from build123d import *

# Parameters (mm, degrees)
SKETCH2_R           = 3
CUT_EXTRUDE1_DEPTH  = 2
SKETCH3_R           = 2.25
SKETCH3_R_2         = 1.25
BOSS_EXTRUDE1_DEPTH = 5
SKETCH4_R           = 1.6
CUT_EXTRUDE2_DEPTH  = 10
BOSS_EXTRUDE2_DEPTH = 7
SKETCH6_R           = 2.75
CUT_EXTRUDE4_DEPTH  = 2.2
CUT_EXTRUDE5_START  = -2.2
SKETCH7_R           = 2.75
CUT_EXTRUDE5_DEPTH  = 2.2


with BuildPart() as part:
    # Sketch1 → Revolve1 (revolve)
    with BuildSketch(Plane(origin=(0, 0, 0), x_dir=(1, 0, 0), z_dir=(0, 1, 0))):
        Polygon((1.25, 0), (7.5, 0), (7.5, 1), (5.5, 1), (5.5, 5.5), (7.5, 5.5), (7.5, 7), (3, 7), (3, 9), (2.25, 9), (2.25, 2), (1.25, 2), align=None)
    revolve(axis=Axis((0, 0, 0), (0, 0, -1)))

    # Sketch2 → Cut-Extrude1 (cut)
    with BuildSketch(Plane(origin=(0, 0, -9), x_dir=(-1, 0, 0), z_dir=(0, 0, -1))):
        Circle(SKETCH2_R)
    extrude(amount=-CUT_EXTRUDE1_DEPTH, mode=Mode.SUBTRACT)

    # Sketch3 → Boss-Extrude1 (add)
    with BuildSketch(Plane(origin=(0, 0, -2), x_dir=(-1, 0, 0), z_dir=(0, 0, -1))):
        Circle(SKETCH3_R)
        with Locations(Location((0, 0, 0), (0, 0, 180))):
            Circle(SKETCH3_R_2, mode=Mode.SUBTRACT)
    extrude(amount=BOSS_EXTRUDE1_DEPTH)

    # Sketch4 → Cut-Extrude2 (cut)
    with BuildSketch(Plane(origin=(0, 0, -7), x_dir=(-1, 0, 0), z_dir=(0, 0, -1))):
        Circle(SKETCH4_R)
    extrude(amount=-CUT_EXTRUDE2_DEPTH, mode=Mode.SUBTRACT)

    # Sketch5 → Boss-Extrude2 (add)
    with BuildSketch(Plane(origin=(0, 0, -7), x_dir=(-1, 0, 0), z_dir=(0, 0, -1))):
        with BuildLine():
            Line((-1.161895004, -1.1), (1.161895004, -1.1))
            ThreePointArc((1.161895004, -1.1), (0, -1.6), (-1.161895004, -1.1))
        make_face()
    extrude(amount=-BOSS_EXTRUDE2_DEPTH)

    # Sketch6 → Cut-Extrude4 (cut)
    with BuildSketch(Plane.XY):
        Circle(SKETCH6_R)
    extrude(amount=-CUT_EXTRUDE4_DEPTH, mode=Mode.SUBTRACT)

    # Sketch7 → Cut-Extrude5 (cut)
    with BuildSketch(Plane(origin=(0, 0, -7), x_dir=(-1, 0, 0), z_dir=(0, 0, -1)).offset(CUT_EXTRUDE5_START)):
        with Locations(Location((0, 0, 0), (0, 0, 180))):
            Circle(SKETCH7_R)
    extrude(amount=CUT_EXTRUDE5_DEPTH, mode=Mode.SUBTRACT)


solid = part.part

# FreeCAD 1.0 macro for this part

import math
import FreeCAD as App
import Part
import Sketcher

doc = App.newDocument("Part")
body = doc.addObject("PartDesign::Body", "Body")

sketch1 = body.newObject("Sketcher::SketchObject", "Sketch")
sketch1.AttachmentSupport = (doc.getObject("XZ_Plane"), [""])
sketch1.MapMode = "FlatFace"
sketch1.addGeometry([
    Part.LineSegment(App.Vector(1.2, 0, 0), App.Vector(7.5, 0, 0)),
    Part.LineSegment(App.Vector(7.5, 0, 0), App.Vector(7.5, -1, 0)),
    Part.LineSegment(App.Vector(7.5, -1, 0), App.Vector(5.5, -1, 0)),
    Part.LineSegment(App.Vector(5.5, -1, 0), App.Vector(5.5, -5.5, 0)),
    Part.LineSegment(App.Vector(5.5, -5.5, 0), App.Vector(7.5, -5.5, 0)),
    Part.LineSegment(App.Vector(7.5, -5.5, 0), App.Vector(7.5, -7, 0)),
    Part.LineSegment(App.Vector(7.5, -7, 0), App.Vector(3, -7, 0)),
    Part.LineSegment(App.Vector(3, -7, 0), App.Vector(3, -9, 0)),
    Part.LineSegment(App.Vector(3, -9, 0), App.Vector(2.2, -9, 0)),
    Part.LineSegment(App.Vector(2.2, -9, 0), App.Vector(2.2, -2, 0)),
    Part.LineSegment(App.Vector(2.2, -2, 0), App.Vector(1.2, -2, 0)),
    Part.LineSegment(App.Vector(1.2, -2, 0), App.Vector(1.2, 0, 0)),
], False)
sketch1.addConstraint([
    Sketcher.Constraint("Coincident", 0, 2, 1, 1),
    Sketcher.Constraint("Coincident", 1, 2, 2, 1),
    Sketcher.Constraint("Coincident", 2, 2, 3, 1),
    Sketcher.Constraint("Coincident", 3, 2, 4, 1),
    Sketcher.Constraint("Coincident", 4, 2, 5, 1),
    Sketcher.Constraint("Coincident", 5, 2, 6, 1),
    Sketcher.Constraint("Coincident", 6, 2, 7, 1),
    Sketcher.Constraint("Coincident", 7, 2, 8, 1),
    Sketcher.Constraint("Coincident", 8, 2, 9, 1),
    Sketcher.Constraint("Coincident", 9, 2, 10, 1),
    Sketcher.Constraint("Coincident", 10, 2, 11, 1),
    Sketcher.Constraint("Coincident", 11, 2, 0, 1),
    Sketcher.Constraint("Horizontal", 0),
    Sketcher.Constraint("Vertical", 1),
    Sketcher.Constraint("Horizontal", 2),
    Sketcher.Constraint("Vertical", 3),
    Sketcher.Constraint("Horizontal", 4),
    Sketcher.Constraint("Vertical", 5),
    Sketcher.Constraint("Horizontal", 6),
    Sketcher.Constraint("Vertical", 7),
    Sketcher.Constraint("Horizontal", 8),
    Sketcher.Constraint("Vertical", 9),
    Sketcher.Constraint("Horizontal", 10),
    Sketcher.Constraint("Vertical", 11),
    Sketcher.Constraint("PointOnObject", 0, 2, -1),
    Sketcher.Constraint("Vertical", 1, 2, 4, 2),
    Sketcher.Constraint("Equal", 10, 1),
    Sketcher.Constraint("Equal", 6, 3),
    Sketcher.Constraint("Equal", 4, 7),
    Sketcher.Constraint("Equal", 7, 11),
    Sketcher.Constraint("DistanceX", 2, 2, 2, 1, 2.0),
    Sketcher.Constraint("DistanceX", 10, 2, 10, 1, 1.0),
    Sketcher.Constraint("DistanceY", 9, 1, 9, 2, 7.0),
    Sketcher.Constraint("DistanceX", 6, 2, 6, 1, 4.5),
    Sketcher.Constraint("DistanceX", -1, 1, 6, 2, 3.0),
    Sketcher.Constraint("DistanceX", 0, 1, 0, 2, 6.25),
])
revolution = body.newObject("PartDesign::Revolution", "Revolution")
revolution.Profile = sketch1
revolution.ReferenceAxis = (sketch1, ["V_Axis"])
revolution.Angle = 360

sketch2 = body.newObject("Sketcher::SketchObject", "Sketch001")
sketch2.AttachmentSupport = (doc.getObject("XY_Plane"), [""])
sketch2.MapMode = "FlatFace"
sketch2.AttachmentOffset = App.Placement(App.Vector(0, 0, -9), App.Rotation())
sketch2.addGeometry(Part.Circle(App.Vector(0, 0, 0), App.Vector(0, 0, 1), 3), False)
sketch2.addConstraint([
    Sketcher.Constraint("Coincident", 0, 3, -1, 1),
    Sketcher.Constraint("Diameter", 0, 6.0),
])
pocket1 = body.newObject("PartDesign::Pocket", "Pocket")
pocket1.Profile = sketch2
pocket1.Length = 2
pocket1.Reversed = True

sketch3 = body.newObject("Sketcher::SketchObject", "Sketch002")
sketch3.AttachmentSupport = (doc.getObject("XY_Plane"), [""])
sketch3.MapMode = "FlatFace"
sketch3.AttachmentOffset = App.Placement(App.Vector(0, 0, -2), App.Rotation())
sketch3.addGeometry([
    Part.Circle(App.Vector(0, 0, 0), App.Vector(0, 0, 1), 2.2),
    Part.Circle(App.Vector(0, 0, 0), App.Vector(0, 0, 1), 1.2),
], False)
sketch3.addConstraint([
    Sketcher.Constraint("Coincident", 0, 3, -1, 1),
    Sketcher.Constraint("Coincident", 1, 3, -1, 1),
    Sketcher.Constraint("Diameter", 0, 4.5),
    Sketcher.Constraint("Diameter", 1, 2.5),
])
pad1 = body.newObject("PartDesign::Pad", "Pad")
pad1.Profile = sketch3
pad1.Length = 5
pad1.Reversed = True

sketch4 = body.newObject("Sketcher::SketchObject", "Sketch003")
sketch4.AttachmentSupport = (doc.getObject("XY_Plane"), [""])
sketch4.MapMode = "FlatFace"
sketch4.AttachmentOffset = App.Placement(App.Vector(0, 0, -7), App.Rotation())
sketch4.addGeometry(Part.Circle(App.Vector(0, 0, 0), App.Vector(0, 0, 1), 1.6), False)
sketch4.addConstraint([
    Sketcher.Constraint("Coincident", 0, 3, -1, 1),
    Sketcher.Constraint("Diameter", 0, 3.2),
])
pocket2 = body.newObject("PartDesign::Pocket", "Pocket001")
pocket2.Profile = sketch4
pocket2.Length = 10
pocket2.Reversed = True

sketch5 = body.newObject("Sketcher::SketchObject", "Sketch004")
sketch5.AttachmentSupport = (doc.getObject("XY_Plane"), [""])
sketch5.MapMode = "FlatFace"
sketch5.AttachmentOffset = App.Placement(App.Vector(0, 0, -7), App.Rotation())
sketch5.addGeometry([
    Part.LineSegment(App.Vector(-1.2, -1.1, 0), App.Vector(1.2, -1.1, 0)),
    Part.ArcOfCircle(Part.Circle(App.Vector(0, 0, 0), App.Vector(0, 0, 1), 1.6), math.radians(-137), math.radians(-43)),
], False)
sketch5.addConstraint([
    Sketcher.Constraint("Coincident", 0, 1, 1, 1),
    Sketcher.Constraint("Coincident", 1, 2, 0, 2),
    Sketcher.Constraint("Horizontal", 0),
    Sketcher.Constraint("Coincident", 1, 3, -1, 1),
    Sketcher.Constraint("Radius", 1, 1.6),
    Sketcher.Constraint("DistanceY", 0, 1, -1, 1, 1.1),
])
pad2 = body.newObject("PartDesign::Pad", "Pad001")
pad2.Profile = sketch5
pad2.Length = 7

sketch6 = body.newObject("Sketcher::SketchObject", "Sketch005")
sketch6.AttachmentSupport = (doc.getObject("XY_Plane"), [""])
sketch6.MapMode = "FlatFace"
sketch6.addGeometry(Part.Circle(App.Vector(0, 0, 0), App.Vector(0, 0, 1), 2.8), False)
sketch6.addConstraint([
    Sketcher.Constraint("Coincident", 0, 3, -1, 1),
    Sketcher.Constraint("Diameter", 0, 5.5),
])
pocket3 = body.newObject("PartDesign::Pocket", "Pocket002")
pocket3.Profile = sketch6
pocket3.Length = 2.2

sketch7 = body.newObject("Sketcher::SketchObject", "Sketch006")
sketch7.AttachmentSupport = (doc.getObject("XY_Plane"), [""])
sketch7.MapMode = "FlatFace"
sketch7.AttachmentOffset = App.Placement(App.Vector(0, 0, -4.8), App.Rotation())
sketch7.addGeometry(Part.Circle(App.Vector(0, 0, 0), App.Vector(0, 0, 1), 2.8), False)
sketch7.addConstraint([
    Sketcher.Constraint("Coincident", 0, 3, -1, 1),
    Sketcher.Constraint("Diameter", 0, 5.5),
])
pocket4 = body.newObject("PartDesign::Pocket", "Pocket003")
pocket4.Profile = sketch7
pocket4.Length = 2.2

doc.recompute()
